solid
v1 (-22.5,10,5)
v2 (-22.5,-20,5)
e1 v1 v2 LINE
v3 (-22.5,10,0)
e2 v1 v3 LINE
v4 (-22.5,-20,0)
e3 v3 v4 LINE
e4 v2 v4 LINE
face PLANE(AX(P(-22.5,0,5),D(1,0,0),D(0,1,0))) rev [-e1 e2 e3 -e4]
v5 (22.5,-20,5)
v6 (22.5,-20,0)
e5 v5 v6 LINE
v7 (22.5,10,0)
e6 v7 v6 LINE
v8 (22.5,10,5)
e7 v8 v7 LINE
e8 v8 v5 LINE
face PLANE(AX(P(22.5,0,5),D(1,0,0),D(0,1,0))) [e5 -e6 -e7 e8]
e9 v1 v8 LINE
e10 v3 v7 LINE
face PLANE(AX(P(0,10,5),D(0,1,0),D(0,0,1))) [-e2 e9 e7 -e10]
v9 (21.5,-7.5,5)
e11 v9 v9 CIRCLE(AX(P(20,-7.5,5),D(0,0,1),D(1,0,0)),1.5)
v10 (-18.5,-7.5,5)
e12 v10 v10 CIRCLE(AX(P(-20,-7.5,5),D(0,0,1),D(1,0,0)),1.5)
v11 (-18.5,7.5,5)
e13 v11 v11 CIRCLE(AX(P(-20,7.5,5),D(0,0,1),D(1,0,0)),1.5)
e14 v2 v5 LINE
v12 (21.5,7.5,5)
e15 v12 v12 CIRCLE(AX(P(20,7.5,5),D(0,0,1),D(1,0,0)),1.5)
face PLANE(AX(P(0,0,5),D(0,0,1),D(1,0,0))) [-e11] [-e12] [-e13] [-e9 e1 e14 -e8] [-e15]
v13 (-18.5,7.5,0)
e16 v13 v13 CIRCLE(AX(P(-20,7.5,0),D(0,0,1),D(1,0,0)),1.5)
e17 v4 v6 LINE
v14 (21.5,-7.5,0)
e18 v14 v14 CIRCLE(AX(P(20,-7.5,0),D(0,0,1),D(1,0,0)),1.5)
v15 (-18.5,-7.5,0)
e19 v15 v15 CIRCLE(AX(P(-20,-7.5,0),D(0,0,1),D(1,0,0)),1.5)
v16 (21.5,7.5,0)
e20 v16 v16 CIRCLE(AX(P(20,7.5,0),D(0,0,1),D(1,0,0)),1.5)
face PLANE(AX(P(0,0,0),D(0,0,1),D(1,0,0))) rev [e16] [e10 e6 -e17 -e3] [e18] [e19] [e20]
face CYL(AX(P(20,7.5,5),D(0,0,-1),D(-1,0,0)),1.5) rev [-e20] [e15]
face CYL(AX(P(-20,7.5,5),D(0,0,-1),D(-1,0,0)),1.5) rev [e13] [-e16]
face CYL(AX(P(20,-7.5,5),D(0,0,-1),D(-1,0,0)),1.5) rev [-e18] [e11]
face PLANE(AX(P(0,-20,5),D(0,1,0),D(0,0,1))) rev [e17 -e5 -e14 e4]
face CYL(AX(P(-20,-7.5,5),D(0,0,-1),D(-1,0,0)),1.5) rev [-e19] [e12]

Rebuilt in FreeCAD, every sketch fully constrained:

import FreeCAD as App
import Part
import Sketcher

V = App.Vector
Q = App.Units.Quantity

doc = App.newDocument("Part")
params = doc.addObject("Spreadsheet::Sheet", "Params")
for row, (alias, value) in enumerate([
    ("sketch1_diameter", "3 mm"),
    ("sketch1_width", "45 mm"),
    ("sketch1_height", "30 mm"),
    ("pad1_length", "5 mm"),
], start=1):
    params.set(f"A{row}", alias)
    params.set(f"B{row}", "=" + value)
    params.setAlias(f"B{row}", alias)

body = doc.addObject("PartDesign::Body", "Body")

# Sketch on XY plane
sketch1 = body.newObject("Sketcher::SketchObject", "Sketch")
sketch1.AttachmentSupport = (doc.getObject("XY_Plane"), [""])
sketch1.MapMode = "FlatFace"
sketch1.addGeometry([
    Part.LineSegment(V(22.5, 10, 0), V(-22.5, 10, 0)),  # 0
    Part.LineSegment(V(-22.5, 10, 0), V(-22.5, -20, 0)),  # 1
    Part.LineSegment(V(-22.5, -20, 0), V(22.5, -20, 0)),  # 2
    Part.LineSegment(V(22.5, -20, 0), V(22.5, 10, 0)),  # 3
    Part.Circle(V(20, -7.5, 0), V(0, 0, 1), 1.5),  # 4
    Part.Circle(V(-20, -7.5, 0), V(0, 0, 1), 1.5),  # 5
    Part.Circle(V(20, 7.5, 0), V(0, 0, 1), 1.5),  # 6
    Part.Circle(V(-20, 7.5, 0), V(0, 0, 1), 1.5),  # 7
], False)
sketch1.addConstraint([
    Sketcher.Constraint("Coincident", 0, 2, 1, 1),
    Sketcher.Constraint("Coincident", 1, 2, 2, 1),
    Sketcher.Constraint("Coincident", 2, 2, 3, 1),
    Sketcher.Constraint("Coincident", 3, 2, 0, 1),
    Sketcher.Constraint("Horizontal", 0),
    Sketcher.Constraint("Vertical", 1),
    Sketcher.Constraint("Horizontal", 2),
    Sketcher.Constraint("Vertical", 3),
    Sketcher.Constraint("Equal", 4, 5),
    Sketcher.Constraint("Equal", 5, 6),
    Sketcher.Constraint("Equal", 6, 7),
    Sketcher.Constraint("Symmetric", 5, 3, 6, 3, -1, 1),
    Sketcher.Constraint("Symmetric", 4, 3, 7, 3, -1, 1),
    Sketcher.Constraint("Symmetric", 4, 3, 5, 3, -2),
    Sketcher.Constraint("Diameter", 4, Q("3 mm")),
    Sketcher.Constraint("DistanceX", 0, 2, 0, 1, Q("45 mm")),
    Sketcher.Constraint("DistanceY", 1, 2, 1, 1, Q("30 mm")),
    Sketcher.Constraint("DistanceX", -1, 1, 4, 3, Q("20 mm")),
    Sketcher.Constraint("DistanceY", -1, 1, 0, 2, Q("10 mm")),
    Sketcher.Constraint("DistanceY", 4, 3, 6, 3, Q("15 mm")),
    Sketcher.Constraint("DistanceX", 0, 2, -1, 1, Q("22.5 mm")),
])
sketch1.setExpression("Constraints[14]", "Params.sketch1_diameter")
sketch1.setExpression("Constraints[15]", "Params.sketch1_width")
sketch1.setExpression("Constraints[16]", "Params.sketch1_height")
pad1 = body.newObject("PartDesign::Pad", "Pad")
pad1.Profile = sketch1
pad1.setExpression("Length", "Params.pad1_length")

doc.recompute()
